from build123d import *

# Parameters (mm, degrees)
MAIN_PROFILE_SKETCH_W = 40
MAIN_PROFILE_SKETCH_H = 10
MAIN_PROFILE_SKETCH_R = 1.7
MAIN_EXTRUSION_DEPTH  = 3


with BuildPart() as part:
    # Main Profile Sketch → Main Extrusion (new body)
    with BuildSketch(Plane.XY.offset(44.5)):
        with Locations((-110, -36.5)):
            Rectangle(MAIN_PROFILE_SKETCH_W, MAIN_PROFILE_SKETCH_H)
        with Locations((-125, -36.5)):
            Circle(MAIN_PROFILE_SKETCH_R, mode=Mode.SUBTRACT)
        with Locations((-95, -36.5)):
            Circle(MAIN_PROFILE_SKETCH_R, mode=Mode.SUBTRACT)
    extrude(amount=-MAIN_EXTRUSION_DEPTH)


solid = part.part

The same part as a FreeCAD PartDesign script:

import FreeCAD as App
import Part
import Sketcher
from FreeCAD import Vector
Q = App.Units.Quantity

doc = App.newDocument("Part")
body = doc.addObject("PartDesign::Body", "Body")

sketch1 = body.newObject("Sketcher::SketchObject", "Sketch")
sketch1.AttachmentSupport = (doc.getObject("XY_Plane"), [""])
sketch1.MapMode = "FlatFace"
sketch1.AttachmentOffset = App.Placement(Vector(0, 0, 44.5), App.Rotation())
sketch1.addGeometry([
    Part.LineSegment(Vector(-130, -31.5, 0), Vector(-130, -41.5, 0)),
    Part.LineSegment(Vector(-130, -41.5, 0), Vector(-90, -41.5, 0)),
    Part.LineSegment(Vector(-90, -41.5, 0), Vector(-90, -31.5, 0)),
    Part.LineSegment(Vector(-90, -31.5, 0), Vector(-130, -31.5, 0)),
    Part.Circle(Vector(-125, -36.5, 0), Vector(0, 0, 1), 1.7),
    Part.Circle(Vector(-95, -36.5, 0), Vector(0, 0, 1), 1.7),
], False)
sketch1.addConstraint([
    Sketcher.Constraint("Coincident", 0, 2, 1, 1),
    Sketcher.Constraint("Coincident", 1, 2, 2, 1),
    Sketcher.Constraint("Coincident", 2, 2, 3, 1),
    Sketcher.Constraint("Coincident", 3, 2, 0, 1),
    Sketcher.Constraint("Vertical", 0),
    Sketcher.Constraint("Horizontal", 1),
    Sketcher.Constraint("Vertical", 2),
    Sketcher.Constraint("Horizontal", 3),
    Sketcher.Constraint("Equal", 4, 5),
    Sketcher.Constraint("Horizontal", 4, 3, 5, 3),
    Sketcher.Constraint("Diameter", 4, Q("3.4 mm")),
    Sketcher.Constraint("DistanceX", 1, 1, 1, 2, Q("40 mm")),
    Sketcher.Constraint("DistanceY", 0, 2, 0, 1, Q("10 mm")),
    Sketcher.Constraint("DistanceX", 4, 3, -1, 1, Q("125 mm")),
    Sketcher.Constraint("DistanceX", 5, 3, -1, 1, Q("95 mm")),
    Sketcher.Constraint("DistanceX", 0, 2, -1, 1, Q("130 mm")),
    Sketcher.Constraint("DistanceY", 0, 2, 4, 3, Q("5 mm")),
    Sketcher.Constraint("DistanceY", 4, 3, -1, 1, Q("36.5 mm")),
])
pad1 = body.newObject("PartDesign::Pad", "Pad")
pad1.Profile = sketch1
pad1.Length = 3
pad1.Reversed = True

doc.recompute()
